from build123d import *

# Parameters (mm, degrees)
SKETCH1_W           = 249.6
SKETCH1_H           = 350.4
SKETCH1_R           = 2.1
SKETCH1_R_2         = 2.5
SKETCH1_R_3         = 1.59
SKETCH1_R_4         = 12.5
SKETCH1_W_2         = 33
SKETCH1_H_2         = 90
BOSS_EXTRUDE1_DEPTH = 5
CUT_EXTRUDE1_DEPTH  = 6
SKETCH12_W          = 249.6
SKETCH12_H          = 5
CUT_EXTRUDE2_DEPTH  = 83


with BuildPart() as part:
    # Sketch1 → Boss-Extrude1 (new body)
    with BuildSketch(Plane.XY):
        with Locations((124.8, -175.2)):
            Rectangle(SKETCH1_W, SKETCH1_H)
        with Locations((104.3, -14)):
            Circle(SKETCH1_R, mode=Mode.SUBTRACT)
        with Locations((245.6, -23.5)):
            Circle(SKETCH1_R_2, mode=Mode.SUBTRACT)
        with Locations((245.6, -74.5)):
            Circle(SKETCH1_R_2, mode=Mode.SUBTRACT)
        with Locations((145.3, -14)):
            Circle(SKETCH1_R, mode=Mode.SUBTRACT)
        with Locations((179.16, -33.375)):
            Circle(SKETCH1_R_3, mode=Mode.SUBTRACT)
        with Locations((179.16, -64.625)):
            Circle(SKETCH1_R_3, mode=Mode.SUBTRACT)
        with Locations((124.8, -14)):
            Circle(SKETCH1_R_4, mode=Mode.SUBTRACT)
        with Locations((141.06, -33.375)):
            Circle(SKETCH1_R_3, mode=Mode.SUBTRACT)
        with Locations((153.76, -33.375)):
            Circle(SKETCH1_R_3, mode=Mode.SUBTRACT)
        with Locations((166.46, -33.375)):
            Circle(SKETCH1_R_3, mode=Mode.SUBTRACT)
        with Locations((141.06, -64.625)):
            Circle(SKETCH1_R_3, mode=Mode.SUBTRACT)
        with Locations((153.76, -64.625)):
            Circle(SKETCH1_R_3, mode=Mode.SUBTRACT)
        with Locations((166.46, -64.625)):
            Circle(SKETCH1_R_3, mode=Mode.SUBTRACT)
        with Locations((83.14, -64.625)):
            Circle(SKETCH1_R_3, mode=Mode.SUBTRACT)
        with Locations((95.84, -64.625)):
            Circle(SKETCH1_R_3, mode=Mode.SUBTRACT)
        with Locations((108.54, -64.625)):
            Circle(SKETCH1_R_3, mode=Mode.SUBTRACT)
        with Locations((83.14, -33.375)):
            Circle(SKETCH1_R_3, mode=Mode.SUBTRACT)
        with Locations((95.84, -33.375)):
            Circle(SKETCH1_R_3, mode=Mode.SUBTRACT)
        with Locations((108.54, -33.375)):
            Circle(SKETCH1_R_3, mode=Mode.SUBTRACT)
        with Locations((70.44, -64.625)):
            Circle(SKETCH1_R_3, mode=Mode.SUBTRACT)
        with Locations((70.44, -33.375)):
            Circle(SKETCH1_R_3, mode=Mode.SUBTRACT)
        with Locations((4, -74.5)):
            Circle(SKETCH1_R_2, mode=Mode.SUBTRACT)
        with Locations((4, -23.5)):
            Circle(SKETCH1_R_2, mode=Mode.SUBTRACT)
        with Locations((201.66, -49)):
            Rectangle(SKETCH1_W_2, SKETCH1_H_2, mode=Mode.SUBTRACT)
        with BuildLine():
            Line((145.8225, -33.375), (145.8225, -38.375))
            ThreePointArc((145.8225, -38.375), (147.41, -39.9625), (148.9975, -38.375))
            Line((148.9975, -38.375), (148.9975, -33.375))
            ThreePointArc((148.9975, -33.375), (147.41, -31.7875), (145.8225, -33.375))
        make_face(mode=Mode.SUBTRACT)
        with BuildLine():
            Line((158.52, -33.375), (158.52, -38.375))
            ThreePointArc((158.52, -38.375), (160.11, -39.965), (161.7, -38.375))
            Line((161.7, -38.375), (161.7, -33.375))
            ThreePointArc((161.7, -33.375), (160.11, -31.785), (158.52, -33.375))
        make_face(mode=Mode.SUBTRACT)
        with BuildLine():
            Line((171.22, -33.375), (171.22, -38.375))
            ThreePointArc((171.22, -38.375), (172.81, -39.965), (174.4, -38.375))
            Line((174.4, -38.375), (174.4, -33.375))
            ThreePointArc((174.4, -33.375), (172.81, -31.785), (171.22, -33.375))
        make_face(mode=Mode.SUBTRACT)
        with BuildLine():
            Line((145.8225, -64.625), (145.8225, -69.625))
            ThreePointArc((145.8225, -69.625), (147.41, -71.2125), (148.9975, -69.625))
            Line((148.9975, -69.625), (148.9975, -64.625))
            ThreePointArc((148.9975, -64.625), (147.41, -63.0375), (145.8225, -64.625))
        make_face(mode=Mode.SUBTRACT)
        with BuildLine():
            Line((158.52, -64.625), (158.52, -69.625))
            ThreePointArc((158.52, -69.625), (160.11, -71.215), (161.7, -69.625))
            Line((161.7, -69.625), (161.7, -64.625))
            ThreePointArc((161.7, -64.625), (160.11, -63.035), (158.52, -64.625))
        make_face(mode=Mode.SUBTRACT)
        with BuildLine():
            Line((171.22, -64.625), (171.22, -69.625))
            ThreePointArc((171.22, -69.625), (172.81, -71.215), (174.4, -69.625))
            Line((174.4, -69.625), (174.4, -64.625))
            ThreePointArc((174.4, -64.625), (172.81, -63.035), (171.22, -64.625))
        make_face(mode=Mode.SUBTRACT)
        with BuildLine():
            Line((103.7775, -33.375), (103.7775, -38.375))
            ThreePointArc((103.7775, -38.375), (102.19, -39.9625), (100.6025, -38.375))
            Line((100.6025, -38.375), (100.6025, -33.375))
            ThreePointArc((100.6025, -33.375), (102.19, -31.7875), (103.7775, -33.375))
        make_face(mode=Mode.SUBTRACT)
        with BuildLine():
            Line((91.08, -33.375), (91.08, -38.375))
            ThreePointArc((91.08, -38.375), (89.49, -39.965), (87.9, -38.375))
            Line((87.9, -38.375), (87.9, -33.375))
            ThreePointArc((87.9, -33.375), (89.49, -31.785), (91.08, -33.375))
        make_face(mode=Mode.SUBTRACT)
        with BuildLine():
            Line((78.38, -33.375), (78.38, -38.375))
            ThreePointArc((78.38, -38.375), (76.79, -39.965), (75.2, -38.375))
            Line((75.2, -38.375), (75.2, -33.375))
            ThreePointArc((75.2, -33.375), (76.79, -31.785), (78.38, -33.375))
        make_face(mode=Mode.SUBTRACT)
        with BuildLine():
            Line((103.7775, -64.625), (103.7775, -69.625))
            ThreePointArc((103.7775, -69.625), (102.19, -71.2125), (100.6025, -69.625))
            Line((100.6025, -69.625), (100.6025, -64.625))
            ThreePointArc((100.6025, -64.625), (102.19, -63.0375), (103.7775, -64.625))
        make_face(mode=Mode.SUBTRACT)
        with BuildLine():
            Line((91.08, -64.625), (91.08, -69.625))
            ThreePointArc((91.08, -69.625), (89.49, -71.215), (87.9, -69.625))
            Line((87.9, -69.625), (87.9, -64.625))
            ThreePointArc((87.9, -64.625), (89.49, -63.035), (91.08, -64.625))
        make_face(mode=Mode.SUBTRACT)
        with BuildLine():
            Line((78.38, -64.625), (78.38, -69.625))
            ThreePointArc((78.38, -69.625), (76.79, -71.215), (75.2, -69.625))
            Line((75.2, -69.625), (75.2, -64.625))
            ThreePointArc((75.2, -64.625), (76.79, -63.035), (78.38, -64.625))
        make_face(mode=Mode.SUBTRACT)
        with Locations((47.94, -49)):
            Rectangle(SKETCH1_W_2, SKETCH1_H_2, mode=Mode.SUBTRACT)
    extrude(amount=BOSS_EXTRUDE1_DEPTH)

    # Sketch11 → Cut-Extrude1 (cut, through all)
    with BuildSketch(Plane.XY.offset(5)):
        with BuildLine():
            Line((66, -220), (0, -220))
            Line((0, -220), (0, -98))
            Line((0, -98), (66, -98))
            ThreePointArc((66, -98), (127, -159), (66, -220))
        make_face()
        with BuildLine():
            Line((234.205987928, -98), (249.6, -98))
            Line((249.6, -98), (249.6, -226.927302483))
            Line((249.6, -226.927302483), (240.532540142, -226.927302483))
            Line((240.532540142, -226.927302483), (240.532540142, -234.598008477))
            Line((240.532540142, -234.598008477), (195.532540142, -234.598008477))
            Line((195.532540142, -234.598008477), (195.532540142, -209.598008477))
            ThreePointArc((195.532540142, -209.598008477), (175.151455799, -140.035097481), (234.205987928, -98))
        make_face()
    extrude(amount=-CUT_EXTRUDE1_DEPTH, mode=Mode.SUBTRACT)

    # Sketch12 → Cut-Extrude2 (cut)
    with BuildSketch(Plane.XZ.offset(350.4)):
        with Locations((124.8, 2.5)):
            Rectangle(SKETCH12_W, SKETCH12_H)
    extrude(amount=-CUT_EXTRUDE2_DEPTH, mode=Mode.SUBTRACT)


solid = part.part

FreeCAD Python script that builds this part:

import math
import FreeCAD as App
import Part
import Sketcher
from FreeCAD import Vector

doc = App.newDocument("Part")
params = doc.addObject("Spreadsheet::Sheet", "Params")
for row, (alias, value) in enumerate([
    ("sketch1_diameter", "5 mm"),
    ("sketch1_diameter2", "25 mm"),
    ("sketch1_diameter3", "4.2 mm"),
    ("sketch1_diameter4", "3.18 mm"),
    ("sketch1_width", "33 mm"),
    ("pad1_length", "5 mm"),
    ("sketch2_radius", "61 mm"),
    ("sketch2_radius2", "62.5 mm"),
    ("sketch2_width", "66 mm"),
    ("sketch2_width2", "45 mm"),
    ("sketch2_height", "25 mm"),
    ("sketch3_height", "5 mm"),
    ("sketch3_width", "249.6 mm"),
    ("pocket2_length", "83 mm"),
], start=1):
    params.set(f"A{row}", alias)
    params.set(f"B{row}", "=" + value)
    params.setAlias(f"B{row}", alias)

body = doc.addObject("PartDesign::Body", "Body")

# Sketch on XY plane
sketch1 = body.newObject("Sketcher::SketchObject", "Sketch")
sketch1.AttachmentSupport = (doc.getObject("XY_Plane"), [""])
sketch1.MapMode = "FlatFace"
sketch1.addGeometry([
    Part.LineSegment(Vector(0, 0, 0), Vector(0, -350.4, 0)),  # 0
    Part.LineSegment(Vector(0, -350.4, 0), Vector(249.6, -350.4, 0)),  # 1
    Part.LineSegment(Vector(249.6, -350.4, 0), Vector(249.6, 0, 0)),  # 2
    Part.LineSegment(Vector(249.6, 0, 0), Vector(0, 0, 0)),  # 3
    Part.Circle(Vector(4, -74.5, 0), Vector(0, 0, 1), 2.5),  # 4
    Part.LineSegment(Vector(64.44, -94, 0), Vector(31.44, -94, 0)),  # 5
    Part.LineSegment(Vector(31.44, -94, 0), Vector(31.44, -4, 0)),  # 6
    Part.LineSegment(Vector(31.44, -4, 0), Vector(64.44, -4, 0)),  # 7
    Part.LineSegment(Vector(64.44, -4, 0), Vector(64.44, -94, 0)),  # 8
    Part.ArcOfCircle(Part.Circle(Vector(76.79, -64.625, 0), Vector(0, 0, 1), 1.59), math.radians(0), math.radians(180)),  # 9
    Part.LineSegment(Vector(78.38, -64.625, 0), Vector(78.38, -69.625, 0)),  # 10
    Part.ArcOfCircle(Part.Circle(Vector(76.79, -69.625, 0), Vector(0, 0, 1), 1.59), math.radians(180), math.radians(360)),  # 11
    Part.LineSegment(Vector(75.2, -69.625, 0), Vector(75.2, -64.625, 0)),  # 12
    Part.ArcOfCircle(Part.Circle(Vector(89.49, -64.625, 0), Vector(0, 0, 1), 1.59), math.radians(0), math.radians(180)),  # 13
    Part.LineSegment(Vector(91.08, -64.625, 0), Vector(91.08, -69.625, 0)),  # 14
    Part.ArcOfCircle(Part.Circle(Vector(89.49, -69.625, 0), Vector(0, 0, 1), 1.59), math.radians(180), math.radians(360)),  # 15
    Part.LineSegment(Vector(87.9, -69.625, 0), Vector(87.9, -64.625, 0)),  # 16
    Part.Circle(Vector(70.44, -64.625, 0), Vector(0, 0, 1), 1.59),  # 17
    Part.Circle(Vector(83.14, -64.625, 0), Vector(0, 0, 1), 1.59),  # 18
    Part.ArcOfCircle(Part.Circle(Vector(102.19, -64.625, 0), Vector(0, 0, 1), 1.5875), math.radians(0), math.radians(180)),  # 19
    Part.LineSegment(Vector(103.7775, -64.625, 0), Vector(103.7775, -69.625, 0)),  # 20
    Part.ArcOfCircle(Part.Circle(Vector(102.19, -69.625, 0), Vector(0, 0, 1), 1.5875), math.radians(180), math.radians(360)),  # 21
    Part.LineSegment(Vector(100.6025, -69.625, 0), Vector(100.6025, -64.625, 0)),  # 22
    Part.Circle(Vector(95.84, -64.625, 0), Vector(0, 0, 1), 1.59),  # 23
    Part.Circle(Vector(108.54, -64.625, 0), Vector(0, 0, 1), 1.59),  # 24
    Part.Circle(Vector(245.6, -74.5, 0), Vector(0, 0, 1), 2.5),  # 25
    Part.LineSegment(Vector(145.8225, -69.625, 0), Vector(145.8225, -64.625, 0)),  # 26
    Part.ArcOfCircle(Part.Circle(Vector(147.41, -64.625, 0), Vector(0, 0, 1), 1.5875), math.radians(0), math.radians(180)),  # 27
    Part.LineSegment(Vector(148.9975, -64.625, 0), Vector(148.9975, -69.625, 0)),  # 28
    Part.ArcOfCircle(Part.Circle(Vector(147.41, -69.625, 0), Vector(0, 0, 1), 1.5875), math.radians(180), math.radians(360)),  # 29
    Part.Circle(Vector(141.06, -64.625, 0), Vector(0, 0, 1), 1.59),  # 30
    Part.Circle(Vector(153.76, -64.625, 0), Vector(0, 0, 1), 1.59),  # 31
    Part.LineSegment(Vector(158.52, -69.625, 0), Vector(158.52, -64.625, 0)),  # 32
    Part.ArcOfCircle(Part.Circle(Vector(160.11, -64.625, 0), Vector(0, 0, 1), 1.59), math.radians(0), math.radians(180)),  # 33
    Part.LineSegment(Vector(161.7, -64.625, 0), Vector(161.7, -69.625, 0)),  # 34
    Part.ArcOfCircle(Part.Circle(Vector(160.11, -69.625, 0), Vector(0, 0, 1), 1.59), math.radians(180), math.radians(360)),  # 35
    Part.LineSegment(Vector(171.22, -69.625, 0), Vector(171.22, -64.625, 0)),  # 36
    Part.ArcOfCircle(Part.Circle(Vector(172.81, -64.625, 0), Vector(0, 0, 1), 1.59), math.radians(0), math.radians(180)),  # 37
    Part.LineSegment(Vector(174.4, -64.625, 0), Vector(174.4, -69.625, 0)),  # 38
    Part.ArcOfCircle(Part.Circle(Vector(172.81, -69.625, 0), Vector(0, 0, 1), 1.59), math.radians(180), math.radians(360)),  # 39
    Part.Circle(Vector(166.46, -64.625, 0), Vector(0, 0, 1), 1.59),  # 40
    Part.Circle(Vector(179.16, -64.625, 0), Vector(0, 0, 1), 1.59),  # 41
    Part.LineSegment(Vector(218.16, -94, 0), Vector(185.16, -94, 0)),  # 42
    Part.LineSegment(Vector(185.16, -94, 0), Vector(185.16, -4, 0)),  # 43
    Part.LineSegment(Vector(185.16, -4, 0), Vector(218.16, -4, 0)),  # 44
    Part.LineSegment(Vector(218.16, -4, 0), Vector(218.16, -94, 0)),  # 45
    Part.Circle(Vector(70.44, -33.375, 0), Vector(0, 0, 1), 1.59),  # 46
    Part.ArcOfCircle(Part.Circle(Vector(76.79, -33.375, 0), Vector(0, 0, 1), 1.59), math.radians(0), math.radians(180)),  # 47
    Part.LineSegment(Vector(78.38, -33.375, 0), Vector(78.38, -38.375, 0)),  # 48
    Part.ArcOfCircle(Part.Circle(Vector(76.79, -38.375, 0), Vector(0, 0, 1), 1.59), math.radians(180), math.radians(360)),  # 49
    Part.LineSegment(Vector(75.2, -38.375, 0), Vector(75.2, -33.375, 0)),  # 50
    Part.Circle(Vector(83.14, -33.375, 0), Vector(0, 0, 1), 1.59),  # 51
    Part.ArcOfCircle(Part.Circle(Vector(89.49, -33.375, 0), Vector(0, 0, 1), 1.59), math.radians(0), math.radians(180)),  # 52
    Part.LineSegment(Vector(91.08, -33.375, 0), Vector(91.08, -38.375, 0)),  # 53
    Part.ArcOfCircle(Part.Circle(Vector(89.49, -38.375, 0), Vector(0, 0, 1), 1.59), math.radians(180), math.radians(360)),  # 54
    Part.LineSegment(Vector(87.9, -38.375, 0), Vector(87.9, -33.375, 0)),  # 55
    Part.Circle(Vector(95.84, -33.375, 0), Vector(0, 0, 1), 1.59),  # 56
    Part.ArcOfCircle(Part.Circle(Vector(102.19, -33.375, 0), Vector(0, 0, 1), 1.5875), math.radians(0), math.radians(180)),  # 57
    Part.LineSegment(Vector(103.7775, -33.375, 0), Vector(103.7775, -38.375, 0)),  # 58
    Part.ArcOfCircle(Part.Circle(Vector(102.19, -38.375, 0), Vector(0, 0, 1), 1.5875), math.radians(180), math.radians(360)),  # 59
    Part.LineSegment(Vector(100.6025, -38.375, 0), Vector(100.6025, -33.375, 0)),  # 60
    Part.Circle(Vector(108.54, -33.375, 0), Vector(0, 0, 1), 1.59),  # 61
    Part.Circle(Vector(4, -23.5, 0), Vector(0, 0, 1), 2.5),  # 62
    Part.Circle(Vector(104.3, -14, 0), Vector(0, 0, 1), 2.1),  # 63
    Part.Circle(Vector(124.8, -14, 0), Vector(0, 0, 1), 12.5),  # 64
    Part.LineSegment(Vector(145.8225, -38.375, 0), Vector(145.8225, -33.375, 0)),  # 65
    Part.ArcOfCircle(Part.Circle(Vector(147.41, -33.375, 0), Vector(0, 0, 1), 1.5875), math.radians(0), math.radians(180)),  # 66
    Part.LineSegment(Vector(148.9975, -33.375, 0), Vector(148.9975, -38.375, 0)),  # 67
    Part.ArcOfCircle(Part.Circle(Vector(147.41, -38.375, 0), Vector(0, 0, 1), 1.5875), math.radians(180), math.radians(360)),  # 68
    Part.Circle(Vector(141.06, -33.375, 0), Vector(0, 0, 1), 1.59),  # 69
    Part.Circle(Vector(153.76, -33.375, 0), Vector(0, 0, 1), 1.59),  # 70
    Part.LineSegment(Vector(158.52, -38.375, 0), Vector(158.52, -33.375, 0)),  # 71
    Part.ArcOfCircle(Part.Circle(Vector(160.11, -33.375, 0), Vector(0, 0, 1), 1.59), math.radians(0), math.radians(180)),  # 72
    Part.LineSegment(Vector(161.7, -33.375, 0), Vector(161.7, -38.375, 0)),  # 73
    Part.ArcOfCircle(Part.Circle(Vector(160.11, -38.375, 0), Vector(0, 0, 1), 1.59), math.radians(180), math.radians(360)),  # 74
    Part.Circle(Vector(166.46, -33.375, 0), Vector(0, 0, 1), 1.59),  # 75
    Part.LineSegment(Vector(171.22, -38.375, 0), Vector(171.22, -33.375, 0)),  # 76
    Part.ArcOfCircle(Part.Circle(Vector(172.81, -33.375, 0), Vector(0, 0, 1), 1.59), math.radians(0), math.radians(180)),  # 77
    Part.LineSegment(Vector(174.4, -33.375, 0), Vector(174.4, -38.375, 0)),  # 78
    Part.ArcOfCircle(Part.Circle(Vector(172.81, -38.375, 0), Vector(0, 0, 1), 1.59), math.radians(180), math.radians(360)),  # 79
    Part.Circle(Vector(179.16, -33.375, 0), Vector(0, 0, 1), 1.59),  # 80
    Part.Circle(Vector(145.3, -14, 0), Vector(0, 0, 1), 2.1),  # 81
    Part.Circle(Vector(245.6, -23.5, 0), Vector(0, 0, 1), 2.5),  # 82
], False)
sketch1.addConstraint([
    Sketcher.Constraint("Coincident", 0, 2, 1, 1),
    Sketcher.Constraint("Coincident", 1, 2, 2, 1),
    Sketcher.Constraint("Coincident", 2, 2, 3, 1),
    Sketcher.Constraint("Coincident", 3, 2, 0, 1),
    Sketcher.Constraint("Coincident", 5, 2, 6, 1),
    Sketcher.Constraint("Coincident", 6, 2, 7, 1),
    Sketcher.Constraint("Coincident", 7, 2, 8, 1),
    Sketcher.Constraint("Coincident", 8, 2, 5, 1),
    Sketcher.Constraint("Tangent", 9, 1, 10, 1),
    Sketcher.Constraint("Tangent", 10, 2, 11, 2),
    Sketcher.Constraint("Tangent", 11, 1, 12, 1),
    Sketcher.Constraint("Tangent", 12, 2, 9, 2),
    Sketcher.Constraint("Tangent", 13, 1, 14, 1),
    Sketcher.Constraint("Tangent", 14, 2, 15, 2),
    Sketcher.Constraint("Tangent", 15, 1, 16, 1),
    Sketcher.Constraint("Tangent", 16, 2, 13, 2),
    Sketcher.Constraint("Tangent", 19, 1, 20, 1),
    Sketcher.Constraint("Tangent", 20, 2, 21, 2),
    Sketcher.Constraint("Tangent", 21, 1, 22, 1),
    Sketcher.Constraint("Tangent", 22, 2, 19, 2),
    Sketcher.Constraint("Tangent", 26, 2, 27, 2),
    Sketcher.Constraint("Tangent", 27, 1, 28, 1),
    Sketcher.Constraint("Tangent", 28, 2, 29, 2),
    Sketcher.Constraint("Tangent", 29, 1, 26, 1),
    Sketcher.Constraint("Tangent", 32, 2, 33, 2),
    Sketcher.Constraint("Tangent", 33, 1, 34, 1),
    Sketcher.Constraint("Tangent", 34, 2, 35, 2),
    Sketcher.Constraint("Tangent", 35, 1, 32, 1),
    Sketcher.Constraint("Tangent", 36, 2, 37, 2),
    Sketcher.Constraint("Tangent", 37, 1, 38, 1),
    Sketcher.Constraint("Tangent", 38, 2, 39, 2),
    Sketcher.Constraint("Tangent", 39, 1, 36, 1),
    Sketcher.Constraint("Coincident", 42, 2, 43, 1),
    Sketcher.Constraint("Coincident", 43, 2, 44, 1),
    Sketcher.Constraint("Coincident", 44, 2, 45, 1),
    Sketcher.Constraint("Coincident", 45, 2, 42, 1),
    Sketcher.Constraint("Tangent", 47, 1, 48, 1),
    Sketcher.Constraint("Tangent", 48, 2, 49, 2),
    Sketcher.Constraint("Tangent", 49, 1, 50, 1),
    Sketcher.Constraint("Tangent", 50, 2, 47, 2),
    Sketcher.Constraint("Tangent", 52, 1, 53, 1),
    Sketcher.Constraint("Tangent", 53, 2, 54, 2),
    Sketcher.Constraint("Tangent", 54, 1, 55, 1),
    Sketcher.Constraint("Tangent", 55, 2, 52, 2),
    Sketcher.Constraint("Tangent", 57, 1, 58, 1),
    Sketcher.Constraint("Tangent", 58, 2, 59, 2),
    Sketcher.Constraint("Tangent", 59, 1, 60, 1),
    Sketcher.Constraint("Tangent", 60, 2, 57, 2),
    Sketcher.Constraint("Tangent", 65, 2, 66, 2),
    Sketcher.Constraint("Tangent", 66, 1, 67, 1),
    Sketcher.Constraint("Tangent", 67, 2, 68, 2),
    Sketcher.Constraint("Tangent", 68, 1, 65, 1),
    Sketcher.Constraint("Tangent", 71, 2, 72, 2),
    Sketcher.Constraint("Tangent", 72, 1, 73, 1),
    Sketcher.Constraint("Tangent", 73, 2, 74, 2),
    Sketcher.Constraint("Tangent", 74, 1, 71, 1),
    Sketcher.Constraint("Tangent", 76, 2, 77, 2),
    Sketcher.Constraint("Tangent", 77, 1, 78, 1),
    Sketcher.Constraint("Tangent", 78, 2, 79, 2),
    Sketcher.Constraint("Tangent", 79, 1, 76, 1),
    Sketcher.Constraint("Vertical", 0),
    Sketcher.Constraint("Horizontal", 1),
    Sketcher.Constraint("Vertical", 2),
    Sketcher.Constraint("Horizontal", 3),
    Sketcher.Constraint("Horizontal", 5),
    Sketcher.Constraint("Vertical", 6),
    Sketcher.Constraint("Horizontal", 7),
    Sketcher.Constraint("Vertical", 8),
    Sketcher.Constraint("Vertical", 10),
    Sketcher.Constraint("Vertical", 12),
    Sketcher.Constraint("Vertical", 14),
    Sketcher.Constraint("Vertical", 16),
    Sketcher.Constraint("Vertical", 20),
    Sketcher.Constraint("Vertical", 22),
    Sketcher.Constraint("Vertical", 26),
    Sketcher.Constraint("Vertical", 28),
    Sketcher.Constraint("Vertical", 32),
    Sketcher.Constraint("Vertical", 34),
    Sketcher.Constraint("Vertical", 36),
    Sketcher.Constraint("Vertical", 38),
    Sketcher.Constraint("Horizontal", 42),
    Sketcher.Constraint("Vertical", 43),
    Sketcher.Constraint("Horizontal", 44),
    Sketcher.Constraint("Vertical", 45),
    Sketcher.Constraint("Vertical", 48),
    Sketcher.Constraint("Vertical", 50),
    Sketcher.Constraint("Vertical", 53),
    Sketcher.Constraint("Vertical", 55),
    Sketcher.Constraint("Vertical", 58),
    Sketcher.Constraint("Vertical", 60),
    Sketcher.Constraint("Vertical", 65),
    Sketcher.Constraint("Vertical", 67),
    Sketcher.Constraint("Vertical", 71),
    Sketcher.Constraint("Vertical", 73),
    Sketcher.Constraint("Vertical", 76),
    Sketcher.Constraint("Vertical", 78),
    Sketcher.Constraint("Coincident", 3, 2, -1, 1),
    Sketcher.Constraint("Equal", 11, 13),
    Sketcher.Constraint("Equal", 15, 17),
    Sketcher.Constraint("Equal", 17, 18),
    Sketcher.Constraint("Equal", 18, 23),
    Sketcher.Constraint("Equal", 23, 24),
    Sketcher.Constraint("Equal", 4, 25),
    Sketcher.Constraint("Equal", 21, 27),
    Sketcher.Constraint("Equal", 24, 30),
    Sketcher.Constraint("Equal", 30, 31),
    Sketcher.Constraint("Equal", 31, 33),
    Sketcher.Constraint("Equal", 35, 37),
    Sketcher.Constraint("Equal", 39, 40),
    Sketcher.Constraint("Equal", 40, 41),
    Sketcher.Constraint("Equal", 41, 46),
    Sketcher.Constraint("Equal", 46, 47),
    Sketcher.Constraint("Equal", 49, 51),
    Sketcher.Constraint("Equal", 51, 52),
    Sketcher.Constraint("Equal", 54, 56),
    Sketcher.Constraint("Equal", 29, 57),
    Sketcher.Constraint("Equal", 56, 61),
    Sketcher.Constraint("Equal", 25, 62),
    Sketcher.Constraint("Equal", 59, 66),
    Sketcher.Constraint("Equal", 61, 69),
    Sketcher.Constraint("Equal", 69, 70),
    Sketcher.Constraint("Equal", 70, 72),
    Sketcher.Constraint("Equal", 74, 75),
    Sketcher.Constraint("Equal", 75, 77),
    Sketcher.Constraint("Equal", 79, 80),
    Sketcher.Constraint("Equal", 63, 81),
    Sketcher.Constraint("Equal", 62, 82),
    Sketcher.Constraint("Horizontal", 9, 3, 13, 3),
    Sketcher.Constraint("Horizontal", 11, 3, 15, 3),
    Sketcher.Constraint("Horizontal", 13, 3, 17, 3),
    Sketcher.Constraint("Horizontal", 17, 3, 18, 3),
    Sketcher.Constraint("Horizontal", 18, 3, 19, 3),
    Sketcher.Constraint("Horizontal", 15, 3, 21, 3),
    Sketcher.Constraint("Horizontal", 19, 3, 23, 3),
    Sketcher.Constraint("Horizontal", 23, 3, 24, 3),
    Sketcher.Constraint("Horizontal", 4, 3, 25, 3),
    Sketcher.Constraint("Horizontal", 24, 3, 27, 3),
    Sketcher.Constraint("Horizontal", 21, 3, 29, 3),
    Sketcher.Constraint("Horizontal", 27, 3, 30, 3),
    Sketcher.Constraint("Horizontal", 30, 3, 31, 3),
    Sketcher.Constraint("Horizontal", 31, 3, 33, 3),
    Sketcher.Constraint("Horizontal", 29, 3, 35, 3),
    Sketcher.Constraint("Horizontal", 33, 3, 37, 3),
    Sketcher.Constraint("Horizontal", 35, 3, 39, 3),
    Sketcher.Constraint("Horizontal", 37, 3, 40, 3),
    Sketcher.Constraint("Horizontal", 40, 3, 41, 3),
    Sketcher.Constraint("Horizontal", 46, 3, 47, 3),
    Sketcher.Constraint("Horizontal", 47, 3, 51, 3),
    Sketcher.Constraint("Horizontal", 51, 3, 52, 3),
    Sketcher.Constraint("Horizontal", 49, 3, 54, 3),
    Sketcher.Constraint("Horizontal", 52, 3, 56, 3),
    Sketcher.Constraint("Horizontal", 56, 3, 57, 3),
    Sketcher.Constraint("Horizontal", 54, 3, 59, 3),
    Sketcher.Constraint("Horizontal", 57, 3, 61, 3),
    Sketcher.Constraint("Horizontal", 63, 3, 64, 3),
    Sketcher.Constraint("Horizontal", 61, 3, 66, 3),
    Sketcher.Constraint("Horizontal", 59, 3, 68, 3),
    Sketcher.Constraint("Horizontal", 66, 3, 69, 3),
    Sketcher.Constraint("Horizontal", 69, 3, 70, 3),
    Sketcher.Constraint("Horizontal", 70, 3, 72, 3),
    Sketcher.Constraint("Horizontal", 68, 3, 74, 3),
    Sketcher.Constraint("Horizontal", 72, 3, 75, 3),
    Sketcher.Constraint("Horizontal", 75, 3, 77, 3),
    Sketcher.Constraint("Horizontal", 74, 3, 79, 3),
    Sketcher.Constraint("Horizontal", 77, 3, 80, 3),
    Sketcher.Constraint("Horizontal", 64, 3, 81, 3),
    Sketcher.Constraint("Horizontal", 62, 3, 82, 3),
    Sketcher.Constraint("Horizontal", 8, 2, 42, 2),
    Sketcher.Constraint("Horizontal", 7, 2, 43, 2),
    Sketcher.Constraint("Vertical", 17, 3, 46, 3),
    Sketcher.Constraint("Vertical", 11, 3, 47, 3),
    Sketcher.Constraint("Vertical", 18, 3, 51, 3),
    Sketcher.Constraint("Vertical", 15, 3, 52, 3),
    Sketcher.Constraint("Vertical", 23, 3, 56, 3),
    Sketcher.Constraint("Vertical", 21, 3, 57, 3),
    Sketcher.Constraint("Vertical", 24, 3, 61, 3),
    Sketcher.Constraint("Vertical", 4, 3, 62, 3),
    Sketcher.Constraint("Vertical", 29, 3, 66, 3),
    Sketcher.Constraint("Vertical", 30, 3, 69, 3),
    Sketcher.Constraint("Vertical", 31, 3, 70, 3),
    Sketcher.Constraint("Vertical", 35, 3, 72, 3),
    Sketcher.Constraint("Vertical", 40, 3, 75, 3),
    Sketcher.Constraint("Vertical", 39, 3, 77, 3),
    Sketcher.Constraint("Vertical", 41, 3, 80, 3),
    Sketcher.Constraint("Vertical", 25, 3, 82, 3),
    Sketcher.Constraint("Equal", 7, 42),
    Sketcher.Constraint("Equal", 38, 48),
    Sketcher.Constraint("Diameter", 4, 5.0),
    Sketcher.Constraint("Diameter", 64, 25.0),
    Sketcher.Constraint("Diameter", 63, 4.2),
    Sketcher.Constraint("Diameter", 17, 3.18),
    Sketcher.Constraint("DistanceX", 5, 2, 5, 1, 33.0),
    Sketcher.Constraint("DistanceY", 6, 1, 6, 2, 90.0),
    Sketcher.Constraint("DistanceY", 10, 2, 10, 1, 5.0),
    Sketcher.Constraint("DistanceX", 1, 1, 1, 2, 249.6),
    Sketcher.Constraint("DistanceY", 0, 2, 0, 1, 350.4),
    Sketcher.Constraint("DistanceX", -1, 1, 4, 3, 4.0),
    Sketcher.Constraint("DistanceY", 63, 3, -1, 1, 14.0),
    Sketcher.Constraint("DistanceY", 5, 2, -1, 1, 94.0),
    Sketcher.Constraint("DistanceY", 4, 3, -1, 1, 74.5),
    Sketcher.Constraint("DistanceX", -1, 1, 25, 3, 245.6),
    Sketcher.Constraint("DistanceY", 62, 3, -1, 1, 23.5),
    Sketcher.Constraint("DistanceX", -1, 1, 63, 3, 104.3),
    Sketcher.Constraint("DistanceX", -1, 1, 64, 3, 124.8),
    Sketcher.Constraint("DistanceX", -1, 1, 81, 3, 145.3),
    Sketcher.Constraint("DistanceX", -1, 1, 11, 1, 75.2),
    Sketcher.Constraint("DistanceX", -1, 1, 15, 1, 87.9),
    Sketcher.Constraint("DistanceX", -1, 1, 33, 1, 161.7),
    Sketcher.Constraint("DistanceX", -1, 1, 37, 1, 174.4),
    Sketcher.Constraint("Radius", 19, 1.5875),
    Sketcher.Constraint("DistanceX", -1, 1, 17, 3, 70.44),
    Sketcher.Constraint("DistanceX", -1, 1, 18, 3, 83.14),
    Sketcher.Constraint("DistanceX", -1, 1, 19, 3, 102.19),
    Sketcher.Constraint("DistanceX", -1, 1, 23, 3, 95.84),
    Sketcher.Constraint("DistanceX", -1, 1, 24, 3, 108.54),
    Sketcher.Constraint("DistanceX", -1, 1, 27, 3, 147.41),
    Sketcher.Constraint("DistanceX", -1, 1, 30, 3, 141.06),
    Sketcher.Constraint("DistanceX", -1, 1, 31, 3, 153.76),
    Sketcher.Constraint("DistanceX", -1, 1, 40, 3, 166.46),
    Sketcher.Constraint("DistanceX", -1, 1, 41, 3, 179.16),
    Sketcher.Constraint("DistanceX", -1, 1, 5, 2, 31.44),
    Sketcher.Constraint("DistanceX", -1, 1, 42, 2, 185.16),
    Sketcher.Constraint("DistanceY", 9, 3, -1, 1, 64.625),
    Sketcher.Constraint("DistanceY", 46, 3, -1, 1, 33.375),
])
sketch1.setExpression("Constraints[187]", "Params.sketch1_diameter")
sketch1.setExpression("Constraints[188]", "Params.sketch1_diameter2")
sketch1.setExpression("Constraints[189]", "Params.sketch1_diameter3")
sketch1.setExpression("Constraints[190]", "Params.sketch1_diameter4")
sketch1.setExpression("Constraints[191]", "Params.sketch1_width")
pad1 = body.newObject("PartDesign::Pad", "Pad")
pad1.Profile = sketch1
pad1.setExpression("Length", "Params.pad1_length")

# Sketch on XY plane
sketch2 = body.newObject("Sketcher::SketchObject", "Sketch001")
sketch2.AttachmentSupport = (doc.getObject("XY_Plane"), [""])
sketch2.MapMode = "FlatFace"
sketch2.AttachmentOffset = App.Placement(Vector(0, 0, 5), App.Rotation())
sketch2.addGeometry([
    Part.LineSegment(Vector(0, -220, 0), Vector(66, -220, 0)),  # 0
    Part.ArcOfCircle(Part.Circle(Vector(66, -159, 0), Vector(0, 0, 1), 61), math.radians(-90), math.radians(90)),  # 1
    Part.LineSegment(Vector(66, -98, 0), Vector(0, -98, 0)),  # 2
    Part.LineSegment(Vector(0, -98, 0), Vector(0, -220, 0)),  # 3
    Part.LineSegment(Vector(249.6, -98, 0), Vector(234.205988, -98, 0)),  # 4
    Part.ArcOfCircle(Part.Circle(Vector(234.205988, -160.5, 0), Vector(0, 0, 1), 62.5), math.radians(90), math.radians(231.773254)),  # 5
    Part.LineSegment(Vector(195.53254, -209.598008, 0), Vector(195.53254, -234.598008, 0)),  # 6
    Part.LineSegment(Vector(195.53254, -234.598008, 0), Vector(240.53254, -234.598008, 0)),  # 7
    Part.LineSegment(Vector(240.53254, -234.598008, 0), Vector(240.53254, -226.927302, 0)),  # 8
    Part.LineSegment(Vector(240.53254, -226.927302, 0), Vector(249.6, -226.927302, 0)),  # 9
    Part.LineSegment(Vector(249.6, -226.927302, 0), Vector(249.6, -98, 0)),  # 10
], False)
sketch2.addConstraint([
    Sketcher.Constraint("Tangent", 0, 2, 1, 1),
    Sketcher.Constraint("Tangent", 1, 2, 2, 1),
    Sketcher.Constraint("Coincident", 2, 2, 3, 1),
    Sketcher.Constraint("Coincident", 3, 2, 0, 1),
    Sketcher.Constraint("Tangent", 4, 2, 5, 1),
    Sketcher.Constraint("Coincident", 5, 2, 6, 1),
    Sketcher.Constraint("Coincident", 6, 2, 7, 1),
    Sketcher.Constraint("Coincident", 7, 2, 8, 1),
    Sketcher.Constraint("Coincident", 8, 2, 9, 1),
    Sketcher.Constraint("Coincident", 9, 2, 10, 1),
    Sketcher.Constraint("Coincident", 10, 2, 4, 1),
    Sketcher.Constraint("Horizontal", 0),
    Sketcher.Constraint("Horizontal", 2),
    Sketcher.Constraint("Vertical", 3),
    Sketcher.Constraint("Horizontal", 4),
    Sketcher.Constraint("Vertical", 6),
    Sketcher.Constraint("Horizontal", 7),
    Sketcher.Constraint("Vertical", 8),
    Sketcher.Constraint("Horizontal", 9),
    Sketcher.Constraint("Vertical", 10),
    Sketcher.Constraint("PointOnObject", 2, 2, -2),
    Sketcher.Constraint("Horizontal", 2, 2, 4, 2),
    Sketcher.Constraint("Radius", 1, 61.0),
    Sketcher.Constraint("Radius", 5, 62.5),
    Sketcher.Constraint("DistanceX", 0, 1, 0, 2, 66.0),
    Sketcher.Constraint("DistanceX", 7, 1, 7, 2, 45.0),
    Sketcher.Constraint("DistanceY", 6, 2, 6, 1, 25.0),
    Sketcher.Constraint("DistanceY", 1, 3, -1, 1, 159.0),
    Sketcher.Constraint("DistanceX", -1, 1, 9, 2, 249.6),
    Sketcher.Constraint("DistanceX", 9, 1, 9, 2, 9.06746),
    Sketcher.Constraint("DistanceX", 4, 2, 4, 1, 15.394012),
    Sketcher.Constraint("DistanceY", 8, 1, 8, 2, 7.670706),
])
sketch2.setExpression("Constraints[22]", "Params.sketch2_radius")
sketch2.setExpression("Constraints[23]", "Params.sketch2_radius2")
sketch2.setExpression("Constraints[24]", "Params.sketch2_width")
sketch2.setExpression("Constraints[25]", "Params.sketch2_width2")
sketch2.setExpression("Constraints[26]", "Params.sketch2_height")
pocket1 = body.newObject("PartDesign::Pocket", "Pocket")
pocket1.Profile = sketch2
pocket1.Type = "ThroughAll"

# Sketch on XZ plane
sketch3 = body.newObject("Sketcher::SketchObject", "Sketch002")
sketch3.AttachmentSupport = (doc.getObject("XZ_Plane"), [""])
sketch3.MapMode = "FlatFace"
sketch3.AttachmentOffset = App.Placement(Vector(0, 0, 350.4), App.Rotation())
sketch3.addGeometry([
    Part.LineSegment(Vector(0, 5, 0), Vector(0, 0, 0)),
    Part.LineSegment(Vector(0, 0, 0), Vector(249.6, 0, 0)),
    Part.LineSegment(Vector(249.6, 0, 0), Vector(249.6, 5, 0)),
    Part.LineSegment(Vector(249.6, 5, 0), Vector(0, 5, 0)),
], False)
sketch3.addConstraint([
    Sketcher.Constraint("Coincident", 0, 2, 1, 1),
    Sketcher.Constraint("Coincident", 1, 2, 2, 1),
    Sketcher.Constraint("Coincident", 2, 2, 3, 1),
    Sketcher.Constraint("Coincident", 3, 2, 0, 1),
    Sketcher.Constraint("Vertical", 0),
    Sketcher.Constraint("Horizontal", 1),
    Sketcher.Constraint("Vertical", 2),
    Sketcher.Constraint("Horizontal", 3),
    Sketcher.Constraint("Coincident", 0, 2, -1, 1),
    Sketcher.Constraint("DistanceY", 0, 2, 0, 1, 5.0),
    Sketcher.Constraint("DistanceX", 1, 1, 1, 2, 249.6),
])
sketch3.setExpression("Constraints[9]", "Params.sketch3_height")
sketch3.setExpression("Constraints[10]", "Params.sketch3_width")
pocket2 = body.newObject("PartDesign::Pocket", "Pocket001")
pocket2.Profile = sketch3
pocket2.setExpression("Length", "Params.pocket2_length")

doc.recompute()
